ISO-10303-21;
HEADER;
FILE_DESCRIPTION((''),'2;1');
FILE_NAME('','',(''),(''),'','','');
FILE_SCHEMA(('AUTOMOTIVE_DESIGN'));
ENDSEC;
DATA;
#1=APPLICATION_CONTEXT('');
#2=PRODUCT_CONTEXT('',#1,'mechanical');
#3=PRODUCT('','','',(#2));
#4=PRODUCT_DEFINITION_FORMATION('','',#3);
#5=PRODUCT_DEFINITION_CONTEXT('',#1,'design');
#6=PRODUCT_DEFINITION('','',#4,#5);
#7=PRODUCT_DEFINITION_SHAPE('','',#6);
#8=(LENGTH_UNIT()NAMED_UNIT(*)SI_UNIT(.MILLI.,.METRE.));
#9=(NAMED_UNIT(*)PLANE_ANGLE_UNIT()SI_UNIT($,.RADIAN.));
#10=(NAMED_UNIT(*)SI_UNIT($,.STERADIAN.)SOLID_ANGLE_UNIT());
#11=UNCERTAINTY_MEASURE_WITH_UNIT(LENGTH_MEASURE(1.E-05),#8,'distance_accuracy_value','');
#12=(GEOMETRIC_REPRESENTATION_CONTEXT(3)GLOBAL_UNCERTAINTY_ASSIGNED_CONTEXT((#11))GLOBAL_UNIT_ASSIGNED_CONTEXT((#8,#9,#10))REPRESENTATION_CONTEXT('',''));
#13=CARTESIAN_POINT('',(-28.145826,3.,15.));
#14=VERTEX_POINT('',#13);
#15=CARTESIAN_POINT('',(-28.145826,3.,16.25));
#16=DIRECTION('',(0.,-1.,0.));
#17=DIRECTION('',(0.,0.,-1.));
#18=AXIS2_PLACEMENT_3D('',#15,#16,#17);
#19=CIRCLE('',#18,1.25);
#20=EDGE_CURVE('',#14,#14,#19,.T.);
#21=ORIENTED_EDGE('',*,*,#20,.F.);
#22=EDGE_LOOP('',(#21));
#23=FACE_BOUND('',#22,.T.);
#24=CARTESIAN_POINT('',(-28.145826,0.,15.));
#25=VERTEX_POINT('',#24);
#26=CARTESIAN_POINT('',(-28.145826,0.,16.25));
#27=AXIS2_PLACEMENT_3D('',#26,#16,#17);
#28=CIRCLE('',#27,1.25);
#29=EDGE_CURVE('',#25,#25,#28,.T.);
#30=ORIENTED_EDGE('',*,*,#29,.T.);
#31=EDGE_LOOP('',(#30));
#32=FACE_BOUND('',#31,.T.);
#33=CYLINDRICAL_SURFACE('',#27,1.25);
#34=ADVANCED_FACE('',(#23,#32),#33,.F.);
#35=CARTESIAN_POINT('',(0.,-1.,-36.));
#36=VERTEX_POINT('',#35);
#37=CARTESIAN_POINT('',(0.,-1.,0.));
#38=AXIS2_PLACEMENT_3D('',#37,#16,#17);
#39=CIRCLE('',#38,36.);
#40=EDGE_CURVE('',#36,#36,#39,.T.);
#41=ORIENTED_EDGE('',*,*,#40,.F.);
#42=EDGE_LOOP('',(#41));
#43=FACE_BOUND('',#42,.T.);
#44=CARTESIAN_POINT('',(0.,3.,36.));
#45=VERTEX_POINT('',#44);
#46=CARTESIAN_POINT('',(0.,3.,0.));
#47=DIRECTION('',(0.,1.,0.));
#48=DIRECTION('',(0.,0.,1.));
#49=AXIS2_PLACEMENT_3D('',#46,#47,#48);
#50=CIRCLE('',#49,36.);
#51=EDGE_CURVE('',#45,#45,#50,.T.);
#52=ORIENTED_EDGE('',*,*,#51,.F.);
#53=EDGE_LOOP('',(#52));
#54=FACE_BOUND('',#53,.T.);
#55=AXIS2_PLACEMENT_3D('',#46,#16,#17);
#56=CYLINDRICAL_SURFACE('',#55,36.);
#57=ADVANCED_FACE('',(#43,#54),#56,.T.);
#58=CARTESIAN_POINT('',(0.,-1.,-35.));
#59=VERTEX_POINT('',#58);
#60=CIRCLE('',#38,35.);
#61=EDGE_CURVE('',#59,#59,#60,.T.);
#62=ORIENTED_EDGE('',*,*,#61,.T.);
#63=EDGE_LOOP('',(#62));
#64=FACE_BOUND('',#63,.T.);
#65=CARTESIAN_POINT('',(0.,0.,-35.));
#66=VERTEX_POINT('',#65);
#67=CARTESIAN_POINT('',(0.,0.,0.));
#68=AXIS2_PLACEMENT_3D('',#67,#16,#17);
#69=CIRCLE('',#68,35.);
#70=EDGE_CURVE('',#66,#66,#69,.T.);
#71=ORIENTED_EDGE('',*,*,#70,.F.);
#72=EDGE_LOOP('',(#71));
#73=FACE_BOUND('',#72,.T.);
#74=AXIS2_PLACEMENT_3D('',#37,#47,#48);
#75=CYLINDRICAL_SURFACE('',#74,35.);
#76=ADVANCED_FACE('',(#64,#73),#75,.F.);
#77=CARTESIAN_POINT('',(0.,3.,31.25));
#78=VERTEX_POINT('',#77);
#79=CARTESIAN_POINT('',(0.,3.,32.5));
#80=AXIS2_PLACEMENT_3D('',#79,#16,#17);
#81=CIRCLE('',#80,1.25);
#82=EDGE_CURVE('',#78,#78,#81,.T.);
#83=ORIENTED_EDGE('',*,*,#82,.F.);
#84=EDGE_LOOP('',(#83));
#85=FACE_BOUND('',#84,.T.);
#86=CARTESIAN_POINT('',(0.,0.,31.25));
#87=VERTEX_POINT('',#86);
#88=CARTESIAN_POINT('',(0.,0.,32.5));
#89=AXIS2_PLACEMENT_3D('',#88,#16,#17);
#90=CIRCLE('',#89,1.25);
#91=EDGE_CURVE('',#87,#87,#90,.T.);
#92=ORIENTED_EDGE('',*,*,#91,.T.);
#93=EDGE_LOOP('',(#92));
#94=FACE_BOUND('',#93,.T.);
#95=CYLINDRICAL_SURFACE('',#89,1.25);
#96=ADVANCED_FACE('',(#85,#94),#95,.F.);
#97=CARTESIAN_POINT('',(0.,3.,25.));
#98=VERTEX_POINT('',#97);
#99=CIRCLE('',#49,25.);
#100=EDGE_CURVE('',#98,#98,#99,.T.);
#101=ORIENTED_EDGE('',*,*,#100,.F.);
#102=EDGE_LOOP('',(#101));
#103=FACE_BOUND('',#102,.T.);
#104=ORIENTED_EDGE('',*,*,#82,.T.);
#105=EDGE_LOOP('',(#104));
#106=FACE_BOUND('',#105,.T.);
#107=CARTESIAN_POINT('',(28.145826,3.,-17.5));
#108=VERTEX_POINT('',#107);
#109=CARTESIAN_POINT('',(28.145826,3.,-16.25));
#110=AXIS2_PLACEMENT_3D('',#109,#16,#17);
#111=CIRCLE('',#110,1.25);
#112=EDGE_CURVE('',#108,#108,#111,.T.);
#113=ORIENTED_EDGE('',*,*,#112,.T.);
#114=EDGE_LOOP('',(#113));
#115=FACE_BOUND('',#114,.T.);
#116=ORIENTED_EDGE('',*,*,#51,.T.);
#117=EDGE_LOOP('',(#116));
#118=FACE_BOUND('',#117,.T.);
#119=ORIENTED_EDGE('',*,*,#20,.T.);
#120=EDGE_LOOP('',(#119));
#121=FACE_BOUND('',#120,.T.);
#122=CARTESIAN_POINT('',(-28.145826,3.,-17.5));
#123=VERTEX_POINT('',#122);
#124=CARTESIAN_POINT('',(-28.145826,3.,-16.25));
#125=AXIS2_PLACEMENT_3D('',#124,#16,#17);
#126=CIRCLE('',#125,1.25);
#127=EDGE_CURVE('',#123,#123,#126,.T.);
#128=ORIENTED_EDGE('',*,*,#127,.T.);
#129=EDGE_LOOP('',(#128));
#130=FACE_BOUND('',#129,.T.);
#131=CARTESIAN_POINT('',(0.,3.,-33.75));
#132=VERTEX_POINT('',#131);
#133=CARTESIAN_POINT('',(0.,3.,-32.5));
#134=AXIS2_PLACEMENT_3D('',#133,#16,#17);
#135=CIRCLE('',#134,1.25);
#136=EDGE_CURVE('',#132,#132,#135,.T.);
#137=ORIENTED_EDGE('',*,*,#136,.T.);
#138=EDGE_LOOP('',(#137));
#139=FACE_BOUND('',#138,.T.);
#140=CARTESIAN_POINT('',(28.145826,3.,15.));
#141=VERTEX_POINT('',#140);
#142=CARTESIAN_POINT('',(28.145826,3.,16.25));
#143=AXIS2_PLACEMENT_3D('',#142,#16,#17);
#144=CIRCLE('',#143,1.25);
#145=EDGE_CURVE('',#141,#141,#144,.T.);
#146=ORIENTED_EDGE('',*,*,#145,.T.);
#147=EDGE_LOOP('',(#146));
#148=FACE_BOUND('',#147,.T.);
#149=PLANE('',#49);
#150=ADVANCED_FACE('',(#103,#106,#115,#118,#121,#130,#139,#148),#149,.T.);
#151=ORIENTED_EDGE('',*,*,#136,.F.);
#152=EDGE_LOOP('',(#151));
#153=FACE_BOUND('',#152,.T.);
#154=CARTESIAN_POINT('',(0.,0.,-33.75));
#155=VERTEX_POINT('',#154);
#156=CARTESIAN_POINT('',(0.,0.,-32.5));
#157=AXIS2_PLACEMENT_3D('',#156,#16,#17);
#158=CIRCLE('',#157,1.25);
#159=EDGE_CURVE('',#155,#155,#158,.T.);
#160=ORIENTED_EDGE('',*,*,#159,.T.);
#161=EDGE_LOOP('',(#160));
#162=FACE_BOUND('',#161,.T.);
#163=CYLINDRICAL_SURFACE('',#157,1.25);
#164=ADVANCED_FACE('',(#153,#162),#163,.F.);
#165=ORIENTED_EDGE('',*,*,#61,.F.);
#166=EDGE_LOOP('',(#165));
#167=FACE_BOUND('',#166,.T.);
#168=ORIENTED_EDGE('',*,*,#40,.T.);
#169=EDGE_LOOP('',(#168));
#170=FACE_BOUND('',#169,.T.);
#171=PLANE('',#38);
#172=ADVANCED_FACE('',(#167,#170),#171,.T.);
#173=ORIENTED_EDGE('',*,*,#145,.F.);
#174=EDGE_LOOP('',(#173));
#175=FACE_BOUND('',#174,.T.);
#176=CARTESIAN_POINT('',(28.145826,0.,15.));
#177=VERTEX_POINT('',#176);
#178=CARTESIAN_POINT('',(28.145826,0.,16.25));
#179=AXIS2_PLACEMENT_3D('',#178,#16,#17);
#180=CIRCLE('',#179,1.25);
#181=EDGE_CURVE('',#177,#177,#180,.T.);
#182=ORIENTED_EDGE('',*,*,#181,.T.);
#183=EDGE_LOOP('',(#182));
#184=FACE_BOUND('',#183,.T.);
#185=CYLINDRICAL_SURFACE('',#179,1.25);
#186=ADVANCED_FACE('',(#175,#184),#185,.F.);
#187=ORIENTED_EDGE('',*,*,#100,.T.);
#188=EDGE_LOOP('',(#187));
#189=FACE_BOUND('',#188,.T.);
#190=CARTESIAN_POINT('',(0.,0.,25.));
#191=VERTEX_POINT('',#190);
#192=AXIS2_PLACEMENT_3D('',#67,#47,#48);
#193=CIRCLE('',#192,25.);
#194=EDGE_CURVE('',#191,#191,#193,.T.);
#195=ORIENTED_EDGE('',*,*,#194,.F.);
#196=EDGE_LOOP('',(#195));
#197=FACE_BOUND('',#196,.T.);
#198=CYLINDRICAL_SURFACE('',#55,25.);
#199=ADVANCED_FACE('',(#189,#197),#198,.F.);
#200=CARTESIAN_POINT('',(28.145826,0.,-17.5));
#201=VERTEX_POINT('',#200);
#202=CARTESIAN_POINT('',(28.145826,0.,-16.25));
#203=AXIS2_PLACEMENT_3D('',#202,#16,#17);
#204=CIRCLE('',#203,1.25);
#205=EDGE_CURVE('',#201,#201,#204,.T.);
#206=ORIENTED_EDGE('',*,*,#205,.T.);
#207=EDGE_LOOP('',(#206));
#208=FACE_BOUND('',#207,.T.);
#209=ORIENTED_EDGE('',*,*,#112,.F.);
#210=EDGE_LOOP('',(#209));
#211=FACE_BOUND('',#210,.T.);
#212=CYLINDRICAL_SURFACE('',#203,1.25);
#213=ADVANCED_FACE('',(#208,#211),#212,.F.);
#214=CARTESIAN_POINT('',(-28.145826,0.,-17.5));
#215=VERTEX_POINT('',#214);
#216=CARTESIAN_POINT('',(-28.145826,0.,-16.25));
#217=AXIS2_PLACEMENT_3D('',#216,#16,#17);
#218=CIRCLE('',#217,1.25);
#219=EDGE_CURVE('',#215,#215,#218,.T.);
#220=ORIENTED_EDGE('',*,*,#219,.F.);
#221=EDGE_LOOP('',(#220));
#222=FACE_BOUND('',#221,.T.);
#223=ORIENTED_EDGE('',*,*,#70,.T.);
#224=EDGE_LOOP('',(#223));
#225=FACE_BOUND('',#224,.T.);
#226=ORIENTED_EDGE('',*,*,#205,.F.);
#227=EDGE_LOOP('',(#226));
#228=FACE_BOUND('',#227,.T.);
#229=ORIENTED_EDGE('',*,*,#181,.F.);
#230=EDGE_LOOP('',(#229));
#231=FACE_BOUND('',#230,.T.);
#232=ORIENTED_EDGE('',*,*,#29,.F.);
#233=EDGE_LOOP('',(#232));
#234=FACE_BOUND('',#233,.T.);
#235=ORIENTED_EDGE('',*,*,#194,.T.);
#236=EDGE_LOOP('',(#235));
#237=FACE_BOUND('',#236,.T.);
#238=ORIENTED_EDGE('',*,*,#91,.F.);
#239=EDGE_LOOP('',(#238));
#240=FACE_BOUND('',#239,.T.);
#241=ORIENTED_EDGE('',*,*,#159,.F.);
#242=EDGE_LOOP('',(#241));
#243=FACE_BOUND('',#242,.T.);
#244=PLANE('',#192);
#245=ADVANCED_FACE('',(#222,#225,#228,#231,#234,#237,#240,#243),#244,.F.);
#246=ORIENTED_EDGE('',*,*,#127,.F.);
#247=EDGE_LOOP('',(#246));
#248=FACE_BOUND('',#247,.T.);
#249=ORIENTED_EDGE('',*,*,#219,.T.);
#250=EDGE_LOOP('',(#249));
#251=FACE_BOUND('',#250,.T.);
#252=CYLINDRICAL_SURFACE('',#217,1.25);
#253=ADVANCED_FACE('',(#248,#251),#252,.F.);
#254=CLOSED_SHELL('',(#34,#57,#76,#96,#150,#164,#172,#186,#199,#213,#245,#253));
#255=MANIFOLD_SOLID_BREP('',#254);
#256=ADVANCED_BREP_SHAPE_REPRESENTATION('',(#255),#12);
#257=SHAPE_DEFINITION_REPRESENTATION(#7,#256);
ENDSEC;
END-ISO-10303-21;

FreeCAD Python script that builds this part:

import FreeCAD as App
import Part
import Sketcher
Q = App.Units.Quantity

doc = App.newDocument("Part")
body = doc.addObject("PartDesign::Body", "Body")

sketch1 = body.newObject("Sketcher::SketchObject", "Sketch")
sketch1.AttachmentSupport = (doc.getObject("XZ_Plane"), [""])
sketch1.MapMode = "FlatFace"
sketch1.addGeometry([
    Part.Circle(App.Vector(0, 0, 0), App.Vector(0, 0, 1), 36),
    Part.Circle(App.Vector(0, 0, 0), App.Vector(0, 0, 1), 25),
], False)
sketch1.addConstraint([
    Sketcher.Constraint("Coincident", 0, 3, -1, 1),
    Sketcher.Constraint("Coincident", 1, 3, -1, 1),
    Sketcher.Constraint("Diameter", 0, Q("72 mm")),
    Sketcher.Constraint("Diameter", 1, Q("50 mm")),
])
pad1 = body.newObject("PartDesign::Pad", "Pad")
pad1.Profile = sketch1
pad1.Length = 3
pad1.Reversed = True

sketch2 = body.newObject("Sketcher::SketchObject", "Sketch001")
sketch2.AttachmentSupport = (doc.getObject("XZ_Plane"), [""])
sketch2.MapMode = "FlatFace"
sketch2.AttachmentOffset = App.Placement(App.Vector(0, 0, 1), App.Rotation())
sketch2.addGeometry([
    Part.Circle(App.Vector(0, 0, 0), App.Vector(0, 0, 1), 36),
    Part.Circle(App.Vector(0, 0, 0), App.Vector(0, 0, 1), 35),
], False)
sketch2.addConstraint([
    Sketcher.Constraint("Coincident", 0, 3, -1, 1),
    Sketcher.Constraint("Coincident", 1, 3, -1, 1),
    Sketcher.Constraint("Diameter", 0, Q("72 mm")),
    Sketcher.Constraint("Diameter", 1, Q("70 mm")),
])
pad2 = body.newObject("PartDesign::Pad", "Pad001")
pad2.Profile = sketch2
pad2.Length = 1
pad2.Reversed = True

sketch3 = body.newObject("Sketcher::SketchObject", "Sketch002")
sketch3.AttachmentSupport = (doc.getObject("XZ_Plane"), [""])
sketch3.MapMode = "FlatFace"
sketch3.addGeometry([
    Part.Circle(App.Vector(0, 32.5, 0), App.Vector(0, 0, 1), 1.25),
    Part.Circle(App.Vector(28.145826, 16.25, 0), App.Vector(0, 0, 1), 1.25),
    Part.Circle(App.Vector(28.145826, -16.25, 0), App.Vector(0, 0, 1), 1.25),
    Part.Circle(App.Vector(-28.145826, 16.25, 0), App.Vector(0, 0, 1), 1.25),
    Part.Circle(App.Vector(-28.145826, -16.25, 0), App.Vector(0, 0, 1), 1.25),
    Part.Circle(App.Vector(0, -32.5, 0), App.Vector(0, 0, 1), 1.25),
], False)
sketch3.addConstraint([
    Sketcher.Constraint("Equal", 0, 1),
    Sketcher.Constraint("Equal", 1, 2),
    Sketcher.Constraint("Equal", 2, 3),
    Sketcher.Constraint("Equal", 3, 4),
    Sketcher.Constraint("Equal", 4, 5),
    Sketcher.Constraint("Symmetric", 2, 3, 3, 3, -1, 1),
    Sketcher.Constraint("Symmetric", 1, 3, 4, 3, -1, 1),
    Sketcher.Constraint("Symmetric", 0, 3, 5, 3, -1, 1),
    Sketcher.Constraint("Symmetric", 1, 3, 3, 3, -2),
    Sketcher.Constraint("PointOnObject", 0, 3, -2),
    Sketcher.Constraint("Diameter", 0, Q("2.5 mm")),
    Sketcher.Constraint("DistanceY", 5, 3, 0, 3, Q("65 mm")),
    Sketcher.Constraint("DistanceY", 2, 3, 1, 3, Q("32.5 mm")),
    Sketcher.Constraint("DistanceX", 3, 3, 1, 3, Q("56.291651 mm")),
])
doc.recompute()
hole = body.newObject("PartDesign::Hole", "Hole")
hole.Profile = sketch3
hole.ThreadType = "None"
hole.Diameter = 2.5
hole.DepthType = "ThroughAll"

doc.recompute()
